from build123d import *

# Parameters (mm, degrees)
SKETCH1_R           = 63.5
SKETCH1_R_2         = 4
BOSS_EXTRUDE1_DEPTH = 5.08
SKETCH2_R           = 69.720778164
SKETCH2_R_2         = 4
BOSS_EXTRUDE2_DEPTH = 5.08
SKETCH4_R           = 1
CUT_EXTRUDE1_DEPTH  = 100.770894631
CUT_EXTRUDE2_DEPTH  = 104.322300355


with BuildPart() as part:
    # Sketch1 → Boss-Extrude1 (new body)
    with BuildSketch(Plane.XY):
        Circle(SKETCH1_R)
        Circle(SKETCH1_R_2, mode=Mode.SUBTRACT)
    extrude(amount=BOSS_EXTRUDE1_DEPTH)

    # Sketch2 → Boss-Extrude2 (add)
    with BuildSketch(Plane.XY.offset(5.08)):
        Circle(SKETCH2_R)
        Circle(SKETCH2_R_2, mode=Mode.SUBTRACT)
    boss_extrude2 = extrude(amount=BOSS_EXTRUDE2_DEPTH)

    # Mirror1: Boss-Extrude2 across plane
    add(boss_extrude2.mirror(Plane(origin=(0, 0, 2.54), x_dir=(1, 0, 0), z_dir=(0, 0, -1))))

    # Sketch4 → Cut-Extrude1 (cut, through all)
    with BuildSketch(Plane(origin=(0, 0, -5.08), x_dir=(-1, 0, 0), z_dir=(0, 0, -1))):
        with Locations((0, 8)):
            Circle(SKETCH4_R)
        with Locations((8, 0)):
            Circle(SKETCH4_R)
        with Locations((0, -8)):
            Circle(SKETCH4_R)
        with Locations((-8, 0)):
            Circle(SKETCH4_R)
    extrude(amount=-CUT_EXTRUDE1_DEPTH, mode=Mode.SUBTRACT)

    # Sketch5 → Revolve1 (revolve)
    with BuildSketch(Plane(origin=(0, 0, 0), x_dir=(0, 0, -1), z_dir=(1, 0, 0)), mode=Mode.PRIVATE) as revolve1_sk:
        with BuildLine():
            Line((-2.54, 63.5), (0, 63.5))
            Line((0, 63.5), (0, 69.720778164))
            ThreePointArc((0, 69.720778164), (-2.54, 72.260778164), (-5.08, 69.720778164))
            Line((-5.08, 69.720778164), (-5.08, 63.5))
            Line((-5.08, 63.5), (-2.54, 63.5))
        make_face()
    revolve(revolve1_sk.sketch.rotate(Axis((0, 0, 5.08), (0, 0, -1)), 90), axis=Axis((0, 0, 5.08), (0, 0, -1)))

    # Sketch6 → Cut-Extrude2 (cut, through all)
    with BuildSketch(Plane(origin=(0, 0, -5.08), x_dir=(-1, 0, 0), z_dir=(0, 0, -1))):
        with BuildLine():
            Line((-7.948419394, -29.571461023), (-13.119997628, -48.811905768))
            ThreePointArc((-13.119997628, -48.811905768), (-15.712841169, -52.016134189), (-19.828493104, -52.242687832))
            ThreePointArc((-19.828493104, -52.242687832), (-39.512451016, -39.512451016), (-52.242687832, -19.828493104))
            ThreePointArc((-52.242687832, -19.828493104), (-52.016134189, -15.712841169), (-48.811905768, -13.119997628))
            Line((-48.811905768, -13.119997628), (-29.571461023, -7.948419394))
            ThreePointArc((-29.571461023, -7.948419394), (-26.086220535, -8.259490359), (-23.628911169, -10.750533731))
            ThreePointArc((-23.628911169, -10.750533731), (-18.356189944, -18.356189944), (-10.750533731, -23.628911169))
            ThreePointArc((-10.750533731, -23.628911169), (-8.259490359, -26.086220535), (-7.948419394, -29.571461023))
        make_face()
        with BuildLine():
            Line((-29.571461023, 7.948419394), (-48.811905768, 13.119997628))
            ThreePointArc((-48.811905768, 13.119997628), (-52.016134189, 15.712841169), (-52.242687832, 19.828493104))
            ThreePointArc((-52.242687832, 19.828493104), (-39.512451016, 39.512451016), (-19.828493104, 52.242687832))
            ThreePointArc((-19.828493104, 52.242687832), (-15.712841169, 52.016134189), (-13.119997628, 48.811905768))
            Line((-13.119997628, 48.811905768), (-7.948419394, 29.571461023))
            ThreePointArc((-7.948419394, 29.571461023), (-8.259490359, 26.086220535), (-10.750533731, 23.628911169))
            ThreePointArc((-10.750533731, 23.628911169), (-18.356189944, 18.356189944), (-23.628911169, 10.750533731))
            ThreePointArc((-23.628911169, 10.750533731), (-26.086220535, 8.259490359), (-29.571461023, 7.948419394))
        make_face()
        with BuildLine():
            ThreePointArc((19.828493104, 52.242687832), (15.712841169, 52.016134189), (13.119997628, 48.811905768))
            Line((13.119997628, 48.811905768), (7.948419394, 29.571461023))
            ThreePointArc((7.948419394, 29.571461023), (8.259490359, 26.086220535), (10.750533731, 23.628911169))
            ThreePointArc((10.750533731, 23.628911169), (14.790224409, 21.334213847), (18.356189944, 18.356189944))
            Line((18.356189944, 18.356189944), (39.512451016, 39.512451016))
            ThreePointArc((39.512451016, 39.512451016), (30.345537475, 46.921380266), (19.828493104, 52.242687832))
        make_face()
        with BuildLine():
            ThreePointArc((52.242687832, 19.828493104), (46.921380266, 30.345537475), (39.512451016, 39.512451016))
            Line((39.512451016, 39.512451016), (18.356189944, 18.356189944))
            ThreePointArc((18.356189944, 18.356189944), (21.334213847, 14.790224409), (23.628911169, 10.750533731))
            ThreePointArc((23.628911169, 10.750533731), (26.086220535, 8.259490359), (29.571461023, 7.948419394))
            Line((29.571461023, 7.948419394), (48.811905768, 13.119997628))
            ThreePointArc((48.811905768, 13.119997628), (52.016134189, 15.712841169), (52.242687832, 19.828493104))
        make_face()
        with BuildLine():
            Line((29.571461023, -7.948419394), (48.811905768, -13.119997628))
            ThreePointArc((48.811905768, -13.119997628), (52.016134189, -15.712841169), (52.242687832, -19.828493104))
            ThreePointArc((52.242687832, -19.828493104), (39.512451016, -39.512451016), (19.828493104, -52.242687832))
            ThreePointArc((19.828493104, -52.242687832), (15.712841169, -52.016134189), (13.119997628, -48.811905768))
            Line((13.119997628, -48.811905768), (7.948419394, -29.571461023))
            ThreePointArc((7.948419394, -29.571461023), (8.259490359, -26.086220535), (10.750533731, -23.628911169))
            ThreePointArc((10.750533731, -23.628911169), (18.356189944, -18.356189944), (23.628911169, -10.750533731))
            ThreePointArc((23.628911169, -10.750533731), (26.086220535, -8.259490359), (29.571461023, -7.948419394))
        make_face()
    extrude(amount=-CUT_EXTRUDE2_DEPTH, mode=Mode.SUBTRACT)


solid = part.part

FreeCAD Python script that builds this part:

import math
import FreeCAD as App
import Part
import Sketcher
Q = App.Units.Quantity

doc = App.newDocument("Part")
params = doc.addObject("Spreadsheet::Sheet", "Params")
for row, (alias, value) in enumerate([
    ("sketch1_diameter", "5 in"),
    ("pad1_length", "0.2 in"),
    ("pad2_length", "0.2 in"),
    ("sketch4_radius", "0.1 in"),
    ("revolution_angle", "360 deg"),
    ("sketch5_radius", "0.2 in"),
], start=1):
    params.set(f"A{row}", alias)
    params.set(f"B{row}", "=" + value)
    params.setAlias(f"B{row}", alias)

body = doc.addObject("PartDesign::Body", "Body")

sketch1 = body.newObject("Sketcher::SketchObject", "Sketch")
sketch1.AttachmentSupport = (doc.getObject("XY_Plane"), [""])
sketch1.MapMode = "FlatFace"
sketch1.addGeometry([
    Part.Circle(App.Vector(0, 0, 0), App.Vector(0, 0, 1), 63.5),
    Part.Circle(App.Vector(0, 0, 0), App.Vector(0, 0, 1), 4),
], False)
sketch1.addConstraint([
    Sketcher.Constraint("Coincident", 0, 3, -1, 1),
    Sketcher.Constraint("Coincident", 1, 3, -1, 1),
    Sketcher.Constraint("Diameter", 0, Q("5 in")),
    Sketcher.Constraint("Diameter", 1, Q("8 mm")),
])
sketch1.setExpression("Constraints[2]", "Params.sketch1_diameter")
pad1 = body.newObject("PartDesign::Pad", "Pad")
pad1.Profile = sketch1
pad1.setExpression("Length", "Params.pad1_length")

sketch2 = body.newObject("Sketcher::SketchObject", "Sketch001")
sketch2.AttachmentSupport = (doc.getObject("XY_Plane"), [""])
sketch2.MapMode = "FlatFace"
sketch2.AttachmentOffset = App.Placement(App.Vector(0, 0, 0.2 * 25.4), App.Rotation())
sketch2.addGeometry([
    Part.Circle(App.Vector(0, 0, 0), App.Vector(0, 0, 1), 69.720778),
    Part.Circle(App.Vector(0, 0, 0), App.Vector(0, 0, 1), 4),
], False)
sketch2.addConstraint([
    Sketcher.Constraint("Coincident", 0, 3, -1, 1),
    Sketcher.Constraint("Coincident", 1, 3, -1, 1),
    Sketcher.Constraint("Diameter", 1, Q("8 mm")),
    Sketcher.Constraint("Diameter", 0, Q("139.441556 mm")),
])
pad2 = body.newObject("PartDesign::Pad", "Pad001")
pad2.Profile = sketch2
pad2.setExpression("Length", "Params.pad2_length")
doc.recompute()

datumplane = body.newObject("PartDesign::Plane", "DatumPlane")
datumplane.AttachmentSupport = (doc.getObject("XY_Plane"), [""])
datumplane.MapMode = "FlatFace"
datumplane.AttachmentOffset = App.Placement(App.Vector(0, 0, 0.1 * 25.4), App.Rotation())
mirrored = body.newObject("PartDesign::Mirrored", "Mirrored")
mirrored.Originals = [pad2]
mirrored.MirrorPlane = (datumplane, [""])
body.Tip = mirrored

sketch3 = body.newObject("Sketcher::SketchObject", "Sketch002")
sketch3.AttachmentSupport = (doc.getObject("XY_Plane"), [""])
sketch3.MapMode = "FlatFace"
sketch3.AttachmentOffset = App.Placement(App.Vector(0, 0, -0.2 * 25.4), App.Rotation())
sketch3.addGeometry([
    Part.Circle(App.Vector(0, 8, 0), App.Vector(0, 0, 1), 1),
    Part.Circle(App.Vector(-8, 0, 0), App.Vector(0, 0, 1), 1),
    Part.Circle(App.Vector(0, -8, 0), App.Vector(0, 0, 1), 1),
    Part.Circle(App.Vector(8, 0, 0), App.Vector(0, 0, 1), 1),
], False)
sketch3.addConstraint([
    Sketcher.Constraint("Equal", 0, 1),
    Sketcher.Constraint("Equal", 1, 2),
    Sketcher.Constraint("Equal", 2, 3),
    Sketcher.Constraint("Symmetric", 0, 3, 2, 3, -1, 1),
    Sketcher.Constraint("Symmetric", 1, 3, 3, 3, -1, 1),
    Sketcher.Constraint("PointOnObject", 0, 3, -2),
    Sketcher.Constraint("PointOnObject", 1, 3, -1),
    Sketcher.Constraint("Diameter", 0, Q("2 mm")),
    Sketcher.Constraint("DistanceY", -1, 1, 0, 3, Q("8 mm")),
    Sketcher.Constraint("DistanceX", 1, 3, -1, 1, Q("8 mm")),
])
pocket1 = body.newObject("PartDesign::Pocket", "Pocket")
pocket1.Profile = sketch3
pocket1.Type = "ThroughAll"
pocket1.Reversed = True

sketch4 = body.newObject("Sketcher::SketchObject", "Sketch003")
sketch4.AttachmentSupport = (doc.getObject("YZ_Plane"), [""])
sketch4.MapMode = "FlatFace"
sketch4.addGeometry([
    Part.LineSegment(App.Vector(63.5, 0, 0), App.Vector(69.720778, 0, 0)),
    Part.ArcOfCircle(Part.Circle(App.Vector(69.720778, 2.54, 0), App.Vector(0, 0, 1), 2.54), math.radians(-90), math.radians(90)),
    Part.LineSegment(App.Vector(69.720778, 5.08, 0), App.Vector(63.5, 5.08, 0)),
    Part.LineSegment(App.Vector(63.5, 5.08, 0), App.Vector(63.5, 0, 0)),
], False)
sketch4.addConstraint([
    Sketcher.Constraint("Tangent", 0, 2, 1, 1),
    Sketcher.Constraint("Tangent", 1, 2, 2, 1),
    Sketcher.Constraint("Coincident", 2, 2, 3, 1),
    Sketcher.Constraint("Coincident", 3, 2, 0, 1),
    Sketcher.Constraint("Horizontal", 0),
    Sketcher.Constraint("Horizontal", 2),
    Sketcher.Constraint("Vertical", 3),
    Sketcher.Constraint("PointOnObject", 0, 2, -1),
    Sketcher.Constraint("Radius", 1, Q("0.1 in")),
    Sketcher.Constraint("DistanceX", -1, 1, 2, 2, Q("2.5 in")),
    Sketcher.Constraint("DistanceX", 0, 1, 0, 2, Q("6.220778 mm")),
])
sketch4.setExpression("Constraints[8]", "Params.sketch4_radius")
revolution = body.newObject("PartDesign::Revolution", "Revolution")
revolution.Profile = sketch4
revolution.ReferenceAxis = (sketch4, ["V_Axis"])
revolution.setExpression("Angle", "Params.revolution_angle")

sketch5 = body.newObject("Sketcher::SketchObject", "Sketch004")
sketch5.AttachmentSupport = (doc.getObject("XY_Plane"), [""])
sketch5.MapMode = "FlatFace"
sketch5.AttachmentOffset = App.Placement(App.Vector(0, 0, -0.2 * 25.4), App.Rotation())
sketch5.addGeometry([
    Part.LineSegment(App.Vector(13.119998, -48.811906, 0), App.Vector(7.948419, -29.571461, 0)),
    Part.ArcOfCircle(Part.Circle(App.Vector(12.854294, -28.252827, 0), App.Vector(0, 0, 1), 5.08), math.radians(114.464288), math.radians(195.044769)),
    Part.ArcOfCircle(Part.Circle(App.Vector(0, 0, 0), App.Vector(0, 0, 1), 25.959573), math.radians(-65.535712), math.radians(-24.464288)),
    Part.ArcOfCircle(Part.Circle(App.Vector(28.252827, -12.854294, 0), App.Vector(0, 0, 1), 5.08), math.radians(74.955231), math.radians(155.535712)),
    Part.LineSegment(App.Vector(29.571461, -7.948419, 0), App.Vector(48.811906, -13.119998, 0)),
    Part.ArcOfCircle(Part.Circle(App.Vector(47.493271, -18.025872, 0), App.Vector(0, 0, 1), 5.08), math.radians(-20.784048), math.radians(74.955231)),
    Part.ArcOfCircle(Part.Circle(App.Vector(0, 0, 0), App.Vector(0, 0, 1), 55.879044), math.radians(-69.215952), math.radians(-20.784048)),
    Part.ArcOfCircle(Part.Circle(App.Vector(18.025872, -47.493271, 0), App.Vector(0, 0, 1), 5.08), math.radians(-164.955231), math.radians(-69.215952)),
    Part.LineSegment(App.Vector(48.811906, 13.119998, 0), App.Vector(29.571461, 7.948419, 0)),
    Part.ArcOfCircle(Part.Circle(App.Vector(28.252827, 12.854294, 0), App.Vector(0, 0, 1), 5.08), math.radians(-155.535712), math.radians(-74.955231)),
    Part.ArcOfCircle(Part.Circle(App.Vector(0, 0, 0), App.Vector(0, 0, 1), 25.959573), math.radians(24.464288), math.radians(65.535712)),
    Part.ArcOfCircle(Part.Circle(App.Vector(12.854294, 28.252827, 0), App.Vector(0, 0, 1), 5.08), math.radians(164.955231), math.radians(245.535712)),
    Part.LineSegment(App.Vector(7.948419, 29.571461, 0), App.Vector(13.119998, 48.811906, 0)),
    Part.ArcOfCircle(Part.Circle(App.Vector(18.025872, 47.493271, 0), App.Vector(0, 0, 1), 5.08), math.radians(69.215952), math.radians(164.955231)),
    Part.ArcOfCircle(Part.Circle(App.Vector(0, 0, 0), App.Vector(0, 0, 1), 55.879044), math.radians(20.784048), math.radians(69.215952)),
    Part.ArcOfCircle(Part.Circle(App.Vector(47.493271, 18.025872, 0), App.Vector(0, 0, 1), 5.08), math.radians(-74.955231), math.radians(20.784048)),
    Part.ArcOfCircle(Part.Circle(App.Vector(-18.025872, 47.493271, 0), App.Vector(0, 0, 1), 5.08), math.radians(15.044769), math.radians(110.784048)),
    Part.LineSegment(App.Vector(-13.119998, 48.811906, 0), App.Vector(-7.948419, 29.571461, 0)),
    Part.ArcOfCircle(Part.Circle(App.Vector(-12.854294, 28.252827, 0), App.Vector(0, 0, 1), 5.08), math.radians(-65.535712), math.radians(15.044769)),
    Part.ArcOfCircle(Part.Circle(App.Vector(0, 0, 0), App.Vector(0, 0, 1), 25.959573), math.radians(114.464288), math.radians(135)),
    Part.ArcOfCircle(Part.Circle(App.Vector(0, 0, 0), App.Vector(0, 0, 1), 25.959573), math.radians(135), math.radians(155.535712)),
    Part.ArcOfCircle(Part.Circle(App.Vector(-28.252827, 12.854294, 0), App.Vector(0, 0, 1), 5.08), math.radians(-105.044769), math.radians(-24.464288)),
    Part.LineSegment(App.Vector(-29.571461, 7.948419, 0), App.Vector(-48.811906, 13.119998, 0)),
    Part.ArcOfCircle(Part.Circle(App.Vector(-47.493271, 18.025872, 0), App.Vector(0, 0, 1), 5.08), math.radians(159.215952), math.radians(254.955231)),
    Part.ArcOfCircle(Part.Circle(App.Vector(0, 0, 0), App.Vector(0, 0, 1), 55.879044), math.radians(135), math.radians(159.215952)),
    Part.ArcOfCircle(Part.Circle(App.Vector(0, 0, 0), App.Vector(0, 0, 1), 55.879044), math.radians(110.784048), math.radians(135)),
    Part.LineSegment(App.Vector(-48.811906, -13.119998, 0), App.Vector(-29.571461, -7.948419, 0)),
    Part.ArcOfCircle(Part.Circle(App.Vector(-28.252827, -12.854294, 0), App.Vector(0, 0, 1), 5.08), math.radians(24.464288), math.radians(105.044769)),
    Part.ArcOfCircle(Part.Circle(App.Vector(0, 0, 0), App.Vector(0, 0, 1), 25.959573), math.radians(-155.535712), math.radians(-114.464288)),
    Part.ArcOfCircle(Part.Circle(App.Vector(-12.854294, -28.252827, 0), App.Vector(0, 0, 1), 5.08), math.radians(-15.044769), math.radians(65.535712)),
    Part.LineSegment(App.Vector(-7.948419, -29.571461, 0), App.Vector(-13.119998, -48.811906, 0)),
    Part.ArcOfCircle(Part.Circle(App.Vector(-18.025872, -47.493271, 0), App.Vector(0, 0, 1), 5.08), math.radians(-110.784048), math.radians(-15.044769)),
    Part.ArcOfCircle(Part.Circle(App.Vector(0, 0, 0), App.Vector(0, 0, 1), 55.879044), math.radians(-159.215952), math.radians(-110.784048)),
    Part.ArcOfCircle(Part.Circle(App.Vector(-47.493271, -18.025872, 0), App.Vector(0, 0, 1), 5.08), math.radians(105.044769), math.radians(200.784048)),
], False)
sketch5.addConstraint([
    Sketcher.Constraint("Tangent", 0, 2, 1, 2),
    Sketcher.Constraint("Tangent", 1, 1, 2, 1),
    Sketcher.Constraint("Tangent", 2, 2, 3, 2),
    Sketcher.Constraint("Tangent", 3, 1, 4, 1),
    Sketcher.Constraint("Tangent", 4, 2, 5, 2),
    Sketcher.Constraint("Tangent", 5, 1, 6, 2),
    Sketcher.Constraint("Tangent", 6, 1, 7, 2),
    Sketcher.Constraint("Tangent", 7, 1, 0, 1),
    Sketcher.Constraint("Tangent", 8, 2, 9, 2),
    Sketcher.Constraint("Tangent", 9, 1, 10, 1),
    Sketcher.Constraint("Tangent", 10, 2, 11, 2),
    Sketcher.Constraint("Tangent", 11, 1, 12, 1),
    Sketcher.Constraint("Tangent", 12, 2, 13, 2),
    Sketcher.Constraint("Tangent", 13, 1, 14, 2),
    Sketcher.Constraint("Tangent", 14, 1, 15, 2),
    Sketcher.Constraint("Tangent", 15, 1, 8, 1),
    Sketcher.Constraint("Tangent", 16, 1, 17, 1),
    Sketcher.Constraint("Tangent", 17, 2, 18, 2),
    Sketcher.Constraint("Tangent", 18, 1, 19, 1),
    Sketcher.Constraint("Tangent", 19, 2, 20, 1),
    Sketcher.Constraint("Tangent", 20, 2, 21, 2),
    Sketcher.Constraint("Tangent", 21, 1, 22, 1),
    Sketcher.Constraint("Tangent", 22, 2, 23, 2),
    Sketcher.Constraint("Tangent", 23, 1, 24, 2),
    Sketcher.Constraint("Tangent", 24, 1, 25, 2),
    Sketcher.Constraint("Tangent", 25, 1, 16, 2),
    Sketcher.Constraint("Tangent", 26, 2, 27, 2),
    Sketcher.Constraint("Tangent", 27, 1, 28, 1),
    Sketcher.Constraint("Tangent", 28, 2, 29, 2),
    Sketcher.Constraint("Tangent", 29, 1, 30, 1),
    Sketcher.Constraint("Tangent", 30, 2, 31, 2),
    Sketcher.Constraint("Tangent", 31, 1, 32, 2),
    Sketcher.Constraint("Tangent", 32, 1, 33, 2),
    Sketcher.Constraint("Tangent", 33, 1, 26, 1),
    Sketcher.Constraint("Coincident", 2, 3, -1, 1),
    Sketcher.Constraint("Coincident", 6, 3, -1, 1),
    Sketcher.Constraint("Coincident", 10, 3, -1, 1),
    Sketcher.Constraint("Coincident", 14, 3, -1, 1),
    Sketcher.Constraint("Coincident", 19, 3, -1, 1),
    Sketcher.Constraint("Coincident", 24, 3, -1, 1),
    Sketcher.Constraint("Coincident", 28, 3, -1, 1),
    Sketcher.Constraint("Coincident", 32, 3, -1, 1),
    Sketcher.Constraint("Equal", 1, 3),
    Sketcher.Constraint("Equal", 3, 5),
    Sketcher.Constraint("Equal", 5, 7),
    Sketcher.Constraint("Equal", 7, 9),
    Sketcher.Constraint("Equal", 2, 10),
    Sketcher.Constraint("Equal", 9, 11),
    Sketcher.Constraint("Equal", 11, 13),
    Sketcher.Constraint("Equal", 6, 14),
    Sketcher.Constraint("Equal", 13, 15),
    Sketcher.Constraint("Equal", 15, 16),
    Sketcher.Constraint("Equal", 16, 18),
    Sketcher.Constraint("Equal", 10, 19),
    Sketcher.Constraint("Equal", 19, 20),
    Sketcher.Constraint("Equal", 18, 21),
    Sketcher.Constraint("Equal", 21, 23),
    Sketcher.Constraint("Equal", 14, 24),
    Sketcher.Constraint("Equal", 24, 25),
    Sketcher.Constraint("Equal", 23, 27),
    Sketcher.Constraint("Equal", 20, 28),
    Sketcher.Constraint("Equal", 27, 29),
    Sketcher.Constraint("Equal", 29, 31),
    Sketcher.Constraint("Equal", 25, 32),
    Sketcher.Constraint("Equal", 31, 33),
    Sketcher.Constraint("Symmetric", 7, 1, 16, 1, -1, 1),
    Sketcher.Constraint("Symmetric", 3, 1, 21, 1, -1, 1),
    Sketcher.Constraint("Symmetric", 8, 2, 26, 2, -1, 1),
    Sketcher.Constraint("Symmetric", 11, 1, 29, 1, -1, 1),
    Sketcher.Constraint("Symmetric", 12, 2, 16, 1, -2),
    Sketcher.Constraint("Symmetric", 8, 2, 21, 1, -2),
    Sketcher.Constraint("Perpendicular", 0, 8),
    Sketcher.Constraint("Equal", 0, 4),
    Sketcher.Constraint("Radius", 1, Q("0.2 in")),
    Sketcher.Constraint("Radius", 2, Q("25.959573 mm")),
    Sketcher.Constraint("Radius", 6, Q("55.879044 mm")),
    Sketcher.Constraint("DistanceY", 5, 1, 2, 2, Q("0.3574 in")),
    Sketcher.Constraint("DistanceX", 7, 3, 5, 3, Q("29.467399 mm")),
    Sketcher.Constraint("DistanceX", 19, 2, -1, 1, Q("18.35619 mm")),
    Sketcher.Constraint("DistanceX", 24, 1, -1, 1, Q("39.512451 mm")),
])
sketch5.setExpression("Constraints[73]", "Params.sketch5_radius")
pocket2 = body.newObject("PartDesign::Pocket", "Pocket001")
pocket2.Profile = sketch5
pocket2.Type = "ThroughAll"
pocket2.Reversed = True

doc.recompute()
